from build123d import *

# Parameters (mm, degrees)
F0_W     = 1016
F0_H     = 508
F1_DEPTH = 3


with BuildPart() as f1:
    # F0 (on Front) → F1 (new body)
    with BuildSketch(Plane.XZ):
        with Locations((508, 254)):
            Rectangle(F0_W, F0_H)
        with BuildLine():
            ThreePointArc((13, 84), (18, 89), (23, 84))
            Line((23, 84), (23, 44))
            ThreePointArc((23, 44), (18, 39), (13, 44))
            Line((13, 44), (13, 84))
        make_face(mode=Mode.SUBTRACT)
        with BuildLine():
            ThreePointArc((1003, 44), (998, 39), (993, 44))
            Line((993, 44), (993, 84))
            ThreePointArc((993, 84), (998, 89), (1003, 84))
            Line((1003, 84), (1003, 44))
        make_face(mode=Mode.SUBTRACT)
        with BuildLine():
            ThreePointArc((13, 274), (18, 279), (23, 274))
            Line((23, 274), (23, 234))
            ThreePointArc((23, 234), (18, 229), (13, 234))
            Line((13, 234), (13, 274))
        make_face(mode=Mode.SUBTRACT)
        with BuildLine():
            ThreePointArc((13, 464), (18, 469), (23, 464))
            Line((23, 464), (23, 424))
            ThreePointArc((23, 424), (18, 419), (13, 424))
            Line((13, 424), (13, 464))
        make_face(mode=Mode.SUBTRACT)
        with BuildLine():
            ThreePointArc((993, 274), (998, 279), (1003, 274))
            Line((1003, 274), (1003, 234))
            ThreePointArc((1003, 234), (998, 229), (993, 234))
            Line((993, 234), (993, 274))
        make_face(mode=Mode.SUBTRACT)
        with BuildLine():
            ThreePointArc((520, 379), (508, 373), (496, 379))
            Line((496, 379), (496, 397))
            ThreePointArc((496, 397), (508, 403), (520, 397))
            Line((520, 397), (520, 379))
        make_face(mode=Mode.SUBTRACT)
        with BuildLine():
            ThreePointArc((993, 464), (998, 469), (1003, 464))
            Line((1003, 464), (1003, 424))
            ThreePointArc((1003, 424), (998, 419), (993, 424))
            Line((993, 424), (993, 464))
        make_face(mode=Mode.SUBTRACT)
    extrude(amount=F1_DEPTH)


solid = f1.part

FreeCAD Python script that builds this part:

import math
import FreeCAD as App
import Part
import Sketcher

V = App.Vector


def add_polygon(sketch, points):
    """Adds a closed chain of lines whose ends are joined by coincident constraints."""
    first, n = sketch.GeometryCount, len(points)
    for a, b in zip(points, points[1:] + points[:1]):
        sketch.addGeometry(Part.LineSegment(App.Vector(*a, 0), App.Vector(*b, 0)), False)
    for i in range(n):
        sketch.addConstraint(Sketcher.Constraint("Coincident", first + i, 2, first + (i + 1) % n, 1))

doc = App.newDocument("Part")
body = doc.addObject("PartDesign::Body", "Body")

# Sketch on XZ plane
sketch1 = body.newObject("Sketcher::SketchObject", "Sketch")
sketch1.AttachmentSupport = (doc.getObject("XZ_Plane"), [""])
sketch1.MapMode = "FlatFace"
add_polygon(sketch1, [(0, 508), (0, 0), (1016, 0), (1016, 508)])  # lines 0-3
sketch1.addGeometry(Part.LineSegment(V(13, 44, 0), V(13, 84, 0)), False)  # 4
sketch1.addGeometry(Part.ArcOfCircle(Part.Circle(V(18, 84, 0), V(0, 0, 1), 5), math.radians(0), math.radians(180)), False)  # 5
sketch1.addGeometry(Part.LineSegment(V(23, 84, 0), V(23, 44, 0)), False)  # 6
sketch1.addGeometry(Part.ArcOfCircle(Part.Circle(V(18, 44, 0), V(0, 0, 1), 5), math.radians(180), math.radians(360)), False)  # 7
sketch1.addGeometry(Part.LineSegment(V(1003, 84, 0), V(1003, 44, 0)), False)  # 8
sketch1.addGeometry(Part.ArcOfCircle(Part.Circle(V(998, 44, 0), V(0, 0, 1), 5), math.radians(180), math.radians(360)), False)  # 9
sketch1.addGeometry(Part.LineSegment(V(993, 44, 0), V(993, 84, 0)), False)  # 10
sketch1.addGeometry(Part.ArcOfCircle(Part.Circle(V(998, 84, 0), V(0, 0, 1), 5), math.radians(0), math.radians(180)), False)  # 11
sketch1.addGeometry(Part.LineSegment(V(13, 234, 0), V(13, 274, 0)), False)  # 12
sketch1.addGeometry(Part.ArcOfCircle(Part.Circle(V(18, 274, 0), V(0, 0, 1), 5), math.radians(0), math.radians(180)), False)  # 13
sketch1.addGeometry(Part.LineSegment(V(23, 274, 0), V(23, 234, 0)), False)  # 14
sketch1.addGeometry(Part.ArcOfCircle(Part.Circle(V(18, 234, 0), V(0, 0, 1), 5), math.radians(180), math.radians(360)), False)  # 15
sketch1.addGeometry(Part.LineSegment(V(13, 424, 0), V(13, 464, 0)), False)  # 16
sketch1.addGeometry(Part.ArcOfCircle(Part.Circle(V(18, 464, 0), V(0, 0, 1), 5), math.radians(0), math.radians(180)), False)  # 17
sketch1.addGeometry(Part.LineSegment(V(23, 464, 0), V(23, 424, 0)), False)  # 18
sketch1.addGeometry(Part.ArcOfCircle(Part.Circle(V(18, 424, 0), V(0, 0, 1), 5), math.radians(180), math.radians(360)), False)  # 19
sketch1.addGeometry(Part.LineSegment(V(993, 234, 0), V(993, 274, 0)), False)  # 20
sketch1.addGeometry(Part.ArcOfCircle(Part.Circle(V(998, 274, 0), V(0, 0, 1), 5), math.radians(0), math.radians(180)), False)  # 21
sketch1.addGeometry(Part.LineSegment(V(1003, 274, 0), V(1003, 234, 0)), False)  # 22
sketch1.addGeometry(Part.ArcOfCircle(Part.Circle(V(998, 234, 0), V(0, 0, 1), 5), math.radians(180), math.radians(360)), False)  # 23
sketch1.addGeometry(Part.LineSegment(V(520, 397, 0), V(520, 379, 0)), False)  # 24
sketch1.addGeometry(Part.ArcOfCircle(Part.Circle(V(508, 388, 0), V(0, 0, 1), 15), math.radians(-143), math.radians(-37)), False)  # 25
sketch1.addGeometry(Part.LineSegment(V(496, 379, 0), V(496, 397, 0)), False)  # 26
sketch1.addGeometry(Part.ArcOfCircle(Part.Circle(V(508, 388, 0), V(0, 0, 1), 15), math.radians(37), math.radians(143)), False)  # 27
sketch1.addGeometry(Part.LineSegment(V(993, 424, 0), V(993, 464, 0)), False)  # 28
sketch1.addGeometry(Part.ArcOfCircle(Part.Circle(V(998, 464, 0), V(0, 0, 1), 5), math.radians(0), math.radians(180)), False)  # 29
sketch1.addGeometry(Part.LineSegment(V(1003, 464, 0), V(1003, 424, 0)), False)  # 30
sketch1.addGeometry(Part.ArcOfCircle(Part.Circle(V(998, 424, 0), V(0, 0, 1), 5), math.radians(180), math.radians(360)), False)  # 31
sketch1.addConstraint([
    Sketcher.Constraint("Tangent", 4, 2, 5, 2),
    Sketcher.Constraint("Tangent", 5, 1, 6, 1),
    Sketcher.Constraint("Tangent", 6, 2, 7, 2),
    Sketcher.Constraint("Tangent", 7, 1, 4, 1),
    Sketcher.Constraint("Tangent", 8, 2, 9, 2),
    Sketcher.Constraint("Tangent", 9, 1, 10, 1),
    Sketcher.Constraint("Tangent", 10, 2, 11, 2),
    Sketcher.Constraint("Tangent", 11, 1, 8, 1),
    Sketcher.Constraint("Tangent", 12, 2, 13, 2),
    Sketcher.Constraint("Tangent", 13, 1, 14, 1),
    Sketcher.Constraint("Tangent", 14, 2, 15, 2),
    Sketcher.Constraint("Tangent", 15, 1, 12, 1),
    Sketcher.Constraint("Tangent", 16, 2, 17, 2),
    Sketcher.Constraint("Tangent", 17, 1, 18, 1),
    Sketcher.Constraint("Tangent", 18, 2, 19, 2),
    Sketcher.Constraint("Tangent", 19, 1, 16, 1),
    Sketcher.Constraint("Tangent", 20, 2, 21, 2),
    Sketcher.Constraint("Tangent", 21, 1, 22, 1),
    Sketcher.Constraint("Tangent", 22, 2, 23, 2),
    Sketcher.Constraint("Tangent", 23, 1, 20, 1),
    Sketcher.Constraint("Coincident", 24, 2, 25, 2),
    Sketcher.Constraint("Coincident", 25, 1, 26, 1),
    Sketcher.Constraint("Coincident", 26, 2, 27, 2),
    Sketcher.Constraint("Coincident", 27, 1, 24, 1),
    Sketcher.Constraint("Tangent", 28, 2, 29, 2),
    Sketcher.Constraint("Tangent", 29, 1, 30, 1),
    Sketcher.Constraint("Tangent", 30, 2, 31, 2),
    Sketcher.Constraint("Tangent", 31, 1, 28, 1),
    Sketcher.Constraint("Vertical", 0),
    Sketcher.Constraint("Horizontal", 1),
    Sketcher.Constraint("Vertical", 2),
    Sketcher.Constraint("Horizontal", 3),
    Sketcher.Constraint("Vertical", 4),
    Sketcher.Constraint("Vertical", 6),
    Sketcher.Constraint("Vertical", 8),
    Sketcher.Constraint("Vertical", 10),
    Sketcher.Constraint("Vertical", 12),
    Sketcher.Constraint("Vertical", 14),
    Sketcher.Constraint("Vertical", 16),
    Sketcher.Constraint("Vertical", 18),
    Sketcher.Constraint("Vertical", 20),
    Sketcher.Constraint("Vertical", 22),
    Sketcher.Constraint("Vertical", 24),
    Sketcher.Constraint("Vertical", 26),
    Sketcher.Constraint("Vertical", 28),
    Sketcher.Constraint("Vertical", 30),
    Sketcher.Constraint("Coincident", 0, 2, -1, 1),
    Sketcher.Constraint("Coincident", 27, 3, 25, 3),
    Sketcher.Constraint("Equal", 7, 9),
    Sketcher.Constraint("Equal", 11, 13),
    Sketcher.Constraint("Equal", 15, 17),
    Sketcher.Constraint("Equal", 19, 21),
    Sketcher.Constraint("Equal", 25, 27),
    Sketcher.Constraint("Equal", 23, 29),
    Sketcher.Constraint("Horizontal", 7, 3, 9, 3),
    Sketcher.Constraint("Horizontal", 5, 3, 11, 3),
    Sketcher.Constraint("Horizontal", 13, 3, 21, 3),
    Sketcher.Constraint("Horizontal", 15, 3, 23, 3),
    Sketcher.Constraint("Horizontal", 17, 3, 29, 3),
    Sketcher.Constraint("Horizontal", 19, 3, 31, 3),
    Sketcher.Constraint("Horizontal", 24, 2, 25, 1),
    Sketcher.Constraint("Vertical", 7, 3, 13, 3),
    Sketcher.Constraint("Vertical", 15, 3, 17, 3),
    Sketcher.Constraint("Vertical", 11, 3, 21, 3),
    Sketcher.Constraint("Vertical", 23, 3, 29, 3),
    Sketcher.Constraint("Equal", 10, 12),
    Sketcher.Constraint("Equal", 14, 16),
    Sketcher.Constraint("Radius", 5, 5.0),
    Sketcher.Constraint("Radius", 25, 15.0),
    Sketcher.Constraint("DistanceX", 1, 1, 1, 2, 1016.0),
    Sketcher.Constraint("DistanceY", 0, 2, 0, 1, 508.0),
    Sketcher.Constraint("DistanceY", 4, 1, 4, 2, 40.0),
    Sketcher.Constraint("DistanceY", 24, 2, 24, 1, 18.0),
    Sketcher.Constraint("DistanceX", -1, 1, 5, 3, 18.0),
    Sketcher.Constraint("DistanceY", -1, 1, 5, 3, 84.0),
    Sketcher.Constraint("DistanceX", -1, 1, 9, 3, 998.0),
    Sketcher.Constraint("DistanceY", -1, 1, 13, 3, 274.0),
    Sketcher.Constraint("DistanceY", -1, 1, 17, 3, 464.0),
    Sketcher.Constraint("DistanceX", -1, 1, 25, 3, 508.0),
    Sketcher.Constraint("DistanceY", -1, 1, 25, 3, 388.0),
])
pad1 = body.newObject("PartDesign::Pad", "Pad")
pad1.Profile = sketch1
pad1.Length = 3

doc.recompute()
